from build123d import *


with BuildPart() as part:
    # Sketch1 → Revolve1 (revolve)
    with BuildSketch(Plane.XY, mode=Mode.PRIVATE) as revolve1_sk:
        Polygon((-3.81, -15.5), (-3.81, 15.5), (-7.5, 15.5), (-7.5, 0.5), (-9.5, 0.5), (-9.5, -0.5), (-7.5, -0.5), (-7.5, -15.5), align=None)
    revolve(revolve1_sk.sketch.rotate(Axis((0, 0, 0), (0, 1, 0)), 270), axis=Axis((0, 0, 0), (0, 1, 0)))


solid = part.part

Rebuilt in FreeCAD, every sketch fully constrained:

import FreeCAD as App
import Part
import Sketcher

doc = App.newDocument("Part")
body = doc.addObject("PartDesign::Body", "Body")

sketch1 = body.newObject("Sketcher::SketchObject", "Sketch")
sketch1.AttachmentSupport = (doc.getObject("XY_Plane"), [""])
sketch1.MapMode = "FlatFace"
sketch1.addGeometry([
    Part.LineSegment(App.Vector(-3.8, -15.5, 0), App.Vector(-3.8, 15.5, 0)),
    Part.LineSegment(App.Vector(-3.8, 15.5, 0), App.Vector(-7.5, 15.5, 0)),
    Part.LineSegment(App.Vector(-7.5, 15.5, 0), App.Vector(-7.5, 0.5, 0)),
    Part.LineSegment(App.Vector(-7.5, 0.5, 0), App.Vector(-9.5, 0.5, 0)),
    Part.LineSegment(App.Vector(-9.5, 0.5, 0), App.Vector(-9.5, -0.5, 0)),
    Part.LineSegment(App.Vector(-9.5, -0.5, 0), App.Vector(-7.5, -0.5, 0)),
    Part.LineSegment(App.Vector(-7.5, -0.5, 0), App.Vector(-7.5, -15.5, 0)),
    Part.LineSegment(App.Vector(-7.5, -15.5, 0), App.Vector(-3.8, -15.5, 0)),
], False)
sketch1.addConstraint([
    Sketcher.Constraint("Coincident", 0, 2, 1, 1),
    Sketcher.Constraint("Coincident", 1, 2, 2, 1),
    Sketcher.Constraint("Coincident", 2, 2, 3, 1),
    Sketcher.Constraint("Coincident", 3, 2, 4, 1),
    Sketcher.Constraint("Coincident", 4, 2, 5, 1),
    Sketcher.Constraint("Coincident", 5, 2, 6, 1),
    Sketcher.Constraint("Coincident", 6, 2, 7, 1),
    Sketcher.Constraint("Coincident", 7, 2, 0, 1),
    Sketcher.Constraint("Vertical", 0),
    Sketcher.Constraint("Horizontal", 1),
    Sketcher.Constraint("Vertical", 2),
    Sketcher.Constraint("Horizontal", 3),
    Sketcher.Constraint("Vertical", 4),
    Sketcher.Constraint("Horizontal", 5),
    Sketcher.Constraint("Vertical", 6),
    Sketcher.Constraint("Horizontal", 7),
    Sketcher.Constraint("Symmetric", 2, 2, 5, 2, -1),
    Sketcher.Constraint("Equal", 2, 6),
    Sketcher.Constraint("DistanceX", 3, 2, 3, 1, 2.0),
    Sketcher.Constraint("DistanceY", 0, 1, 0, 2, 31.0),
    Sketcher.Constraint("DistanceY", 2, 2, 2, 1, 15.0),
    Sketcher.Constraint("DistanceX", 1, 2, 1, 1, 3.69),
    Sketcher.Constraint("DistanceX", 1, 2, -1, 1, 7.5),
])
revolution = body.newObject("PartDesign::Revolution", "Revolution")
revolution.Profile = sketch1
revolution.ReferenceAxis = (sketch1, ["V_Axis"])
revolution.Angle = 360

doc.recompute()
